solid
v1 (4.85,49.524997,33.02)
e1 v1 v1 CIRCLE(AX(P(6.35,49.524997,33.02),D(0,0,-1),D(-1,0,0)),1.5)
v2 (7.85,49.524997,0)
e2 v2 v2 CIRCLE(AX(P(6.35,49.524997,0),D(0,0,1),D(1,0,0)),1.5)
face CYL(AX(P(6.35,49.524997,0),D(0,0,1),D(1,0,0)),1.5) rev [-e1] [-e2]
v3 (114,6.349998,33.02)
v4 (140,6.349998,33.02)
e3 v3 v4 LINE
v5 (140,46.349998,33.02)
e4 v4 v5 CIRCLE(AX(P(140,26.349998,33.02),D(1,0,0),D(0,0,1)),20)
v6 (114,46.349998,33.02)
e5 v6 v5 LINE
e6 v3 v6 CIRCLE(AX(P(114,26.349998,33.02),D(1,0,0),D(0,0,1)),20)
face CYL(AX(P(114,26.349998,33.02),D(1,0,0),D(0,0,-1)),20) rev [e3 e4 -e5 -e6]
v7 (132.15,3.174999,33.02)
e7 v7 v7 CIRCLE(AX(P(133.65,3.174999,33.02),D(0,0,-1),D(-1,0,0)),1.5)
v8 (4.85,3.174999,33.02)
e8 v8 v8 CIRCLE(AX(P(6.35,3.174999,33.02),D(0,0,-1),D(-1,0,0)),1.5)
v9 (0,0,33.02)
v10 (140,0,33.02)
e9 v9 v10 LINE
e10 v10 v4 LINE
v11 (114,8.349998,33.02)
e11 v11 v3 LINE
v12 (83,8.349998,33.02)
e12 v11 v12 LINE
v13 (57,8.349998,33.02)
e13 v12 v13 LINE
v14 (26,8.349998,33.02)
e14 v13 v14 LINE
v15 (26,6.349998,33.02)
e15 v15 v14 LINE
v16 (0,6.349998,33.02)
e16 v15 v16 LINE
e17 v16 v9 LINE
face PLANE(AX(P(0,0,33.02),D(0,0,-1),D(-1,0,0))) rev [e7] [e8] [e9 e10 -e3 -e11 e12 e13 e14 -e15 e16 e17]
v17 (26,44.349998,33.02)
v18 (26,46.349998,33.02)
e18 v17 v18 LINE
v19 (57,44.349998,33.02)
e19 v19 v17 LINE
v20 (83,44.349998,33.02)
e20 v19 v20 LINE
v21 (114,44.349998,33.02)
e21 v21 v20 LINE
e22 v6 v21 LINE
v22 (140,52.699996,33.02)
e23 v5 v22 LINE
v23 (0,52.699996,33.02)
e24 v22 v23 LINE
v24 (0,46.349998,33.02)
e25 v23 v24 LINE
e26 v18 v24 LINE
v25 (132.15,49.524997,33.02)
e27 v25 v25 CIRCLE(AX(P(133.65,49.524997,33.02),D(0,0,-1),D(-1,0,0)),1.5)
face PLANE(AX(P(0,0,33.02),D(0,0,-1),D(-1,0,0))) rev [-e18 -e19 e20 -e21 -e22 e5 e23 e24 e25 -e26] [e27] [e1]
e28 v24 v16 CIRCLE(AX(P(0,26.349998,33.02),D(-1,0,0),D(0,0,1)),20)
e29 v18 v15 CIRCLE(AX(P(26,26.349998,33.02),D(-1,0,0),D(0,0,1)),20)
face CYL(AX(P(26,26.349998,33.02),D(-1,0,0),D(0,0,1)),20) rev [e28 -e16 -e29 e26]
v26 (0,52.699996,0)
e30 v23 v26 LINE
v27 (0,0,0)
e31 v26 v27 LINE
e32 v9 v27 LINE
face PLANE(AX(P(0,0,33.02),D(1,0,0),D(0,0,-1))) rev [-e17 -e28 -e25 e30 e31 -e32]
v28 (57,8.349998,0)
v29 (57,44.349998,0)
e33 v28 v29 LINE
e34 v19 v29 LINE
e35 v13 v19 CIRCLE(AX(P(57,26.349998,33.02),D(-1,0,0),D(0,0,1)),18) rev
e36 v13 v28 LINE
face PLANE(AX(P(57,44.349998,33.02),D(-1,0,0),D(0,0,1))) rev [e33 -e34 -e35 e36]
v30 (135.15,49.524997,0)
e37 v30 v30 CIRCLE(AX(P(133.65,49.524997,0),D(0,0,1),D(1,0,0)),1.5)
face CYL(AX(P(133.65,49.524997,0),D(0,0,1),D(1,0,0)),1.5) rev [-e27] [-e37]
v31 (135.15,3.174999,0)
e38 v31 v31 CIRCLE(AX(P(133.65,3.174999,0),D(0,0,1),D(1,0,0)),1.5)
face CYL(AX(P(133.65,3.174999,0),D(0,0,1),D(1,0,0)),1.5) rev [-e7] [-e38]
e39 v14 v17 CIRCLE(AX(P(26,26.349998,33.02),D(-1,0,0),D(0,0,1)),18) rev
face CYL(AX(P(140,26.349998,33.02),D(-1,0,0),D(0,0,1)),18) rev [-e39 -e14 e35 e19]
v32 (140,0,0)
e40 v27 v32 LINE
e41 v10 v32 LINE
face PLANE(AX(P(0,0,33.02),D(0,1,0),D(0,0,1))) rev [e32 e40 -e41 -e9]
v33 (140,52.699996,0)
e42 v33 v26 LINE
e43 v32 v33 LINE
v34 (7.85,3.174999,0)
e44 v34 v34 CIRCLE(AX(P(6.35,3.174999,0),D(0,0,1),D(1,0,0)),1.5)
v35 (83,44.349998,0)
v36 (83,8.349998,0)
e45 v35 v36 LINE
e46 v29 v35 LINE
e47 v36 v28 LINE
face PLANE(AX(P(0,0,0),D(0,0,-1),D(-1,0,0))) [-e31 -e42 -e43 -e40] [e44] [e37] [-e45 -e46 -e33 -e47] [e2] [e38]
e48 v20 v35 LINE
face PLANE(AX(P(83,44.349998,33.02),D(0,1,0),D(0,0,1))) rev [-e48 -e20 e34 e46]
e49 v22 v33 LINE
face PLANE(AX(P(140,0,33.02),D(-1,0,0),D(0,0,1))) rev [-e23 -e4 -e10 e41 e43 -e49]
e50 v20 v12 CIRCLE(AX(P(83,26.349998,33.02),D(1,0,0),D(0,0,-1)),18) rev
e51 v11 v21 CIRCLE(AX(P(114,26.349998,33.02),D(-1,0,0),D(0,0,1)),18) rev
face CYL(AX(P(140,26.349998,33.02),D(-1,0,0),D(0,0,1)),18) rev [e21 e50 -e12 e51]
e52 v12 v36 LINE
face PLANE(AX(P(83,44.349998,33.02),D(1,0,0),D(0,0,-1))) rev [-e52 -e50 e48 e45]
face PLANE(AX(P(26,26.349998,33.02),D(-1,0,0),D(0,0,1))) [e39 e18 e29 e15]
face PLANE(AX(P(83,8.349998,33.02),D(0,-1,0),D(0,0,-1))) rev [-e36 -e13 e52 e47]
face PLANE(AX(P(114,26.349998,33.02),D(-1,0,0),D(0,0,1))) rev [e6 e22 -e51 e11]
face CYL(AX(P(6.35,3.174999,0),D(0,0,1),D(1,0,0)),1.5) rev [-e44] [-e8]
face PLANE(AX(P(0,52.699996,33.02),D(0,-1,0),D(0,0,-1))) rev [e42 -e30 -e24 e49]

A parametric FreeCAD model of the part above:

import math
import FreeCAD as App
import Part
import Sketcher
from FreeCAD import Vector
Q = App.Units.Quantity


def add_polygon(sketch, points):
    """Adds a closed chain of lines whose ends are joined by coincident constraints."""
    first, n = sketch.GeometryCount, len(points)
    for a, b in zip(points, points[1:] + points[:1]):
        sketch.addGeometry(Part.LineSegment(App.Vector(*a, 0), App.Vector(*b, 0)), False)
    for i in range(n):
        sketch.addConstraint(Sketcher.Constraint("Coincident", first + i, 2, first + (i + 1) % n, 1))

doc = App.newDocument("Part")
body = doc.addObject("PartDesign::Body", "Body")

# Sketch on XY plane
sketch1 = body.newObject("Sketcher::SketchObject", "Sketch")
sketch1.AttachmentSupport = (doc.getObject("XY_Plane"), [""])
sketch1.MapMode = "FlatFace"
add_polygon(sketch1, [(0, 53), (0, 0), (140, 0), (140, 53)])  # lines 0-3
sketch1.addConstraint(Sketcher.Constraint("Vertical", 0))
sketch1.addConstraint(Sketcher.Constraint("Horizontal", 1))
sketch1.addConstraint(Sketcher.Constraint("Vertical", 2))
sketch1.addConstraint(Sketcher.Constraint("Horizontal", 3))
sketch1.addConstraint(Sketcher.Constraint("Coincident", 0, 2, -1, 1))
sketch1.addConstraint(Sketcher.Constraint("DistanceX", 1, 1, 1, 2, Q("140 mm")))
sketch1.addConstraint(Sketcher.Constraint("DistanceY", 0, 2, 0, 1, Q("52.699996 mm")))
pad1 = body.newObject("PartDesign::Pad", "Pad")
pad1.Profile = sketch1
pad1.Length = 33.02

# Sketch on YZ plane
sketch2 = body.newObject("Sketcher::SketchObject", "Sketch001")
sketch2.AttachmentSupport = (doc.getObject("YZ_Plane"), [""])
sketch2.MapMode = "FlatFace"
sketch2.addGeometry(Part.LineSegment(Vector(8, 33, 0), Vector(44, 33, 0)), False)
sketch2.addGeometry(Part.ArcOfCircle(Part.Circle(Vector(26, 33, 0), Vector(0, 0, 1), 18), math.radians(180), math.radians(360)), False)
sketch2.addConstraint(Sketcher.Constraint("Coincident", 0, 1, 1, 1))
sketch2.addConstraint(Sketcher.Constraint("Coincident", 1, 2, 0, 2))
sketch2.addConstraint(Sketcher.Constraint("Horizontal", 0))
sketch2.addConstraint(Sketcher.Constraint("Horizontal", 1, 3, 0, 1))
sketch2.addConstraint(Sketcher.Constraint("Radius", 1, Q("18 mm")))
sketch2.addConstraint(Sketcher.Constraint("DistanceX", -1, 1, 1, 3, Q("26.349998 mm")))
sketch2.addConstraint(Sketcher.Constraint("DistanceY", -1, 1, 1, 3, Q("33.02 mm")))
pocket1 = body.newObject("PartDesign::Pocket", "Pocket")
pocket1.Profile = sketch2
pocket1.Type = "ThroughAll"
pocket1.Midplane = True

# Sketch on YZ plane
sketch3 = body.newObject("Sketcher::SketchObject", "Sketch002")
sketch3.AttachmentSupport = (doc.getObject("YZ_Plane"), [""])
sketch3.MapMode = "FlatFace"
sketch3.addGeometry(Part.LineSegment(Vector(6, 33, 0), Vector(46, 33, 0)), False)
sketch3.addGeometry(Part.ArcOfCircle(Part.Circle(Vector(26, 33, 0), Vector(0, 0, 1), 20), math.radians(180), math.radians(360)), False)
sketch3.addConstraint(Sketcher.Constraint("Coincident", 0, 1, 1, 1))
sketch3.addConstraint(Sketcher.Constraint("Coincident", 1, 2, 0, 2))
sketch3.addConstraint(Sketcher.Constraint("Horizontal", 0))
sketch3.addConstraint(Sketcher.Constraint("Horizontal", 1, 3, 0, 1))
sketch3.addConstraint(Sketcher.Constraint("Radius", 1, Q("20 mm")))
sketch3.addConstraint(Sketcher.Constraint("DistanceX", -1, 1, 1, 3, Q("26.349998 mm")))
sketch3.addConstraint(Sketcher.Constraint("DistanceY", -1, 1, 1, 3, Q("33.02 mm")))
pocket2 = body.newObject("PartDesign::Pocket", "Pocket001")
pocket2.Profile = sketch3
pocket2.Length = 26
pocket2.Reversed = True

# Sketch on YZ plane
sketch4 = body.newObject("Sketcher::SketchObject", "Sketch003")
sketch4.AttachmentSupport = (doc.getObject("YZ_Plane"), [""])
sketch4.MapMode = "FlatFace"
sketch4.AttachmentOffset = App.Placement(Vector(0, 0, 114), App.Rotation())
sketch4.addGeometry(Part.LineSegment(Vector(46, 33, 0), Vector(6, 33, 0)), False)
sketch4.addGeometry(Part.ArcOfCircle(Part.Circle(Vector(26, 33, 0), Vector(0, 0, 1), 20), math.radians(180), math.radians(360)), False)
sketch4.addConstraint(Sketcher.Constraint("Coincident", 0, 1, 1, 2))
sketch4.addConstraint(Sketcher.Constraint("Coincident", 1, 1, 0, 2))
sketch4.addConstraint(Sketcher.Constraint("Horizontal", 0))
sketch4.addConstraint(Sketcher.Constraint("Horizontal", 1, 3, 0, 1))
sketch4.addConstraint(Sketcher.Constraint("Radius", 1, Q("20 mm")))
sketch4.addConstraint(Sketcher.Constraint("DistanceX", -1, 1, 1, 3, Q("26.349998 mm")))
sketch4.addConstraint(Sketcher.Constraint("DistanceY", -1, 1, 1, 3, Q("33.02 mm")))
pocket3 = body.newObject("PartDesign::Pocket", "Pocket002")
pocket3.Profile = sketch4
pocket3.Length = 26
pocket3.Reversed = True

# Sketch on XY plane
sketch5 = body.newObject("Sketcher::SketchObject", "Sketch004")
sketch5.AttachmentSupport = (doc.getObject("XY_Plane"), [""])
sketch5.MapMode = "FlatFace"
add_polygon(sketch5, [(83, 44), (83, 8), (57, 8), (57, 44)])  # lines 0-3
sketch5.addConstraint(Sketcher.Constraint("Vertical", 0))
sketch5.addConstraint(Sketcher.Constraint("Horizontal", 1))
sketch5.addConstraint(Sketcher.Constraint("Vertical", 2))
sketch5.addConstraint(Sketcher.Constraint("Horizontal", 3))
sketch5.addConstraint(Sketcher.Constraint("DistanceX", 1, 2, 1, 1, Q("26 mm")))
sketch5.addConstraint(Sketcher.Constraint("DistanceY", 0, 2, 0, 1, Q("36 mm")))
sketch5.addConstraint(Sketcher.Constraint("DistanceX", -1, 1, 0, 2, Q("83 mm")))
sketch5.addConstraint(Sketcher.Constraint("DistanceY", -1, 1, 0, 2, Q("8.349998 mm")))
pocket4 = body.newObject("PartDesign::Pocket", "Pocket003")
pocket4.Profile = sketch5
pocket4.Type = "ThroughAll"
pocket4.Midplane = True

# Sketch on XY plane
sketch6 = body.newObject("Sketcher::SketchObject", "Sketch005")
sketch6.AttachmentSupport = (doc.getObject("XY_Plane"), [""])
sketch6.MapMode = "FlatFace"
sketch6.AttachmentOffset = App.Placement(Vector(0, 0, 33.02), App.Rotation())
sketch6.addGeometry(Part.Circle(Vector(6.3, 49.5, 0), Vector(0, 0, 1), 1.5), False)
sketch6.addGeometry(Part.Circle(Vector(6.3, 3.2, 0), Vector(0, 0, 1), 1.5), False)
sketch6.addGeometry(Part.Circle(Vector(133.6, 49.5, 0), Vector(0, 0, 1), 1.5), False)
sketch6.addGeometry(Part.Circle(Vector(133.6, 3.2, 0), Vector(0, 0, 1), 1.5), False)
sketch6.addConstraint(Sketcher.Constraint("Equal", 0, 1))
sketch6.addConstraint(Sketcher.Constraint("Equal", 1, 2))
sketch6.addConstraint(Sketcher.Constraint("Equal", 2, 3))
sketch6.addConstraint(Sketcher.Constraint("Horizontal", 0, 3, 2, 3))
sketch6.addConstraint(Sketcher.Constraint("Horizontal", 1, 3, 3, 3))
sketch6.addConstraint(Sketcher.Constraint("Vertical", 0, 3, 1, 3))
sketch6.addConstraint(Sketcher.Constraint("Vertical", 2, 3, 3, 3))
sketch6.addConstraint(Sketcher.Constraint("Diameter", 0, Q("3 mm")))
sketch6.addConstraint(Sketcher.Constraint("DistanceX", 0, 3, 2, 3, Q("127.3 mm")))
sketch6.addConstraint(Sketcher.Constraint("DistanceX", -1, 1, 0, 3, Q("6.35 mm")))
sketch6.addConstraint(Sketcher.Constraint("DistanceY", 1, 3, 0, 3, Q("46.349998 mm")))
sketch6.addConstraint(Sketcher.Constraint("DistanceY", -1, 1, 1, 3, Q("3.174999 mm")))
pocket5 = body.newObject("PartDesign::Pocket", "Pocket004")
pocket5.Profile = sketch6
pocket5.Type = "ThroughAll"
pocket5.Midplane = True

doc.recompute()
